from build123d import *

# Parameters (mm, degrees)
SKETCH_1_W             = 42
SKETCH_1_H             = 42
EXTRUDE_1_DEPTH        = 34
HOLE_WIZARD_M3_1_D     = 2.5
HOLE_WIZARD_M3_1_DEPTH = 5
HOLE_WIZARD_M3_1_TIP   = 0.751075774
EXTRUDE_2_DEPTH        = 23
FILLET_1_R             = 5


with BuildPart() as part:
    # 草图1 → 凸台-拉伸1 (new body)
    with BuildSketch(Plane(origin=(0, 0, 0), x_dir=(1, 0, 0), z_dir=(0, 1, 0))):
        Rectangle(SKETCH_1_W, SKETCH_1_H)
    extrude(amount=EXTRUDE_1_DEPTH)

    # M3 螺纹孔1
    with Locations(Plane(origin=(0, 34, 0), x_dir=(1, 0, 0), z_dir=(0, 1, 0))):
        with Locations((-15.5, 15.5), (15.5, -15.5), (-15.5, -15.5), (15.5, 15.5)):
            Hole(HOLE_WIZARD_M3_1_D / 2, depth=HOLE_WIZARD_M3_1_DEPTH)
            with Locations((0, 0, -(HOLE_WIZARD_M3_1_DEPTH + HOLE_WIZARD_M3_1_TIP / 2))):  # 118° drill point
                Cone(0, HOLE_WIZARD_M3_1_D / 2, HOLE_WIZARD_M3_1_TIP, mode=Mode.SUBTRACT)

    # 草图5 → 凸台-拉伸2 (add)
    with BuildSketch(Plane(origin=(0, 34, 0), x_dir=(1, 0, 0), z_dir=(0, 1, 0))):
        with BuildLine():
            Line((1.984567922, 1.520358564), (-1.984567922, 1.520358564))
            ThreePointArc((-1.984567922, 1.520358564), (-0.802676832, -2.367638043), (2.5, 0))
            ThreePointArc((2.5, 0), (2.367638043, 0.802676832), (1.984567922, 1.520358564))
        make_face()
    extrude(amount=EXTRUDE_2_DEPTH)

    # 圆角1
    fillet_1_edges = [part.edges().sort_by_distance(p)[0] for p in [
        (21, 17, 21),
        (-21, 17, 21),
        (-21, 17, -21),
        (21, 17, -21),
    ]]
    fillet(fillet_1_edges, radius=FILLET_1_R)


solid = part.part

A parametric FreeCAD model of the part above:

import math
import FreeCAD as App
import Part
import Sketcher
Q = App.Units.Quantity


def edges_at(feature, points):
    """Names of the edges that pass closest to the given points."""
    edges = feature.Shape.Edges
    near = lambda p: min(range(len(edges)), key=lambda i: edges[i].distToShape(Part.Vertex(*p))[0])
    return sorted({f"Edge{near(p) + 1}" for p in points})


def add_polygon(sketch, points):
    """Adds a closed chain of lines whose ends are joined by coincident constraints."""
    first, n = sketch.GeometryCount, len(points)
    for a, b in zip(points, points[1:] + points[:1]):
        sketch.addGeometry(Part.LineSegment(App.Vector(*a, 0), App.Vector(*b, 0)), False)
    for i in range(n):
        sketch.addConstraint(Sketcher.Constraint("Coincident", first + i, 2, first + (i + 1) % n, 1))

doc = App.newDocument("Part")
body = doc.addObject("PartDesign::Body", "Body")

sketch1 = doc.addObject("Sketcher::SketchObject", "Sketch")
body.addObject(sketch1)
sketch1.AttachmentSupport = (doc.XZ_Plane, [""])
sketch1.MapMode = "FlatFace"
add_polygon(sketch1, [(-21, -21), (-21, 21), (21, 21), (21, -21)])
sketch1.addConstraint([
    Sketcher.Constraint("Vertical", 0),
    Sketcher.Constraint("Horizontal", 1),
    Sketcher.Constraint("Vertical", 2),
    Sketcher.Constraint("Horizontal", 3),
    Sketcher.Constraint("Symmetric", 0, 2, 2, 2, -1, 1),
    Sketcher.Constraint("Equal", 3, 0),
    Sketcher.Constraint("DistanceX", 1, 1, 1, 2, Q("42 mm")),
])
pad1 = doc.addObject("PartDesign::Pad", "Pad")
body.addObject(pad1)
pad1.Profile = sketch1
pad1.Length = 34
pad1.Reversed = True

sketch2 = doc.addObject("Sketcher::SketchObject", "Sketch001")
body.addObject(sketch2)
sketch2.AttachmentSupport = (doc.XZ_Plane, [""])
sketch2.MapMode = "FlatFace"
sketch2.AttachmentOffset = App.Placement(App.Vector(0, 0, -34), App.Rotation())
sketch2.addGeometry([
    Part.Circle(App.Vector(-15.5, -15.5, 0), App.Vector(0, 0, 1), 1.2),
    Part.Circle(App.Vector(15.5, 15.5, 0), App.Vector(0, 0, 1), 1.2),
    Part.Circle(App.Vector(-15.5, 15.5, 0), App.Vector(0, 0, 1), 1.2),
    Part.Circle(App.Vector(15.5, -15.5, 0), App.Vector(0, 0, 1), 1.2),
], False)
sketch2.addConstraint([
    Sketcher.Constraint("Equal", 0, 1),
    Sketcher.Constraint("Equal", 1, 2),
    Sketcher.Constraint("Equal", 2, 3),
    Sketcher.Constraint("Symmetric", 0, 3, 1, 3, -1, 1),
    Sketcher.Constraint("Symmetric", 2, 3, 3, 3, -1, 1),
    Sketcher.Constraint("Symmetric", 1, 3, 2, 3, -2),
    Sketcher.Constraint("Diameter", 0, Q("2.5 mm")),
    Sketcher.Constraint("DistanceX", 0, 3, 1, 3, Q("31 mm")),
    Sketcher.Constraint("DistanceY", 0, 3, 1, 3, Q("31 mm")),
])
doc.recompute()
hole = doc.addObject("PartDesign::Hole", "Hole")
body.addObject(hole)
hole.Profile = sketch2
hole.ThreadType = "None"
hole.Diameter = 2.5
hole.DepthType = "Dimension"
hole.Depth = 5
hole.DrillPoint = "Angled"
hole.DrillPointAngle = 118
hole.Reversed = True

sketch3 = doc.addObject("Sketcher::SketchObject", "Sketch002")
body.addObject(sketch3)
sketch3.AttachmentSupport = (doc.XZ_Plane, [""])
sketch3.MapMode = "FlatFace"
sketch3.AttachmentOffset = App.Placement(App.Vector(0, 0, -34), App.Rotation())
sketch3.addGeometry([
    Part.LineSegment(App.Vector(2, -1.5, 0), App.Vector(-2, -1.5, 0)),
    Part.ArcOfCircle(Part.Circle(App.Vector(0, 0, 0), App.Vector(0, 0, 1), 2.5), math.radians(0), math.radians(217)),
    Part.ArcOfCircle(Part.Circle(App.Vector(0, 0, 0), App.Vector(0, 0, 1), 2.5), math.radians(-37), math.radians(0)),
], False)
sketch3.addConstraint([
    Sketcher.Constraint("Coincident", 0, 2, 1, 2),
    Sketcher.Constraint("Tangent", 1, 1, 2, 2),
    Sketcher.Constraint("Coincident", 2, 1, 0, 1),
    Sketcher.Constraint("Horizontal", 0),
    Sketcher.Constraint("Coincident", 1, 3, -1, 1),
    Sketcher.Constraint("Equal", 1, 2),
    Sketcher.Constraint("PointOnObject", 1, 1, -1),
    Sketcher.Constraint("Radius", 1, Q("2.5 mm")),
    Sketcher.Constraint("DistanceX", 0, 2, 0, 1, Q("3.969136 mm")),
])
pad2 = doc.addObject("PartDesign::Pad", "Pad001")
body.addObject(pad2)
pad2.Profile = sketch3
pad2.Length = 23
pad2.Reversed = True
doc.recompute()

fillet = doc.addObject("PartDesign::Fillet", "Fillet")
body.addObject(fillet)
fillet.Base = (pad2, edges_at(pad2, [
    (21, 17, 21),
    (-21, 17, 21),
    (-21, 17, -21),
    (21, 17, -21),
]))
fillet.Radius = 5

doc.recompute()
